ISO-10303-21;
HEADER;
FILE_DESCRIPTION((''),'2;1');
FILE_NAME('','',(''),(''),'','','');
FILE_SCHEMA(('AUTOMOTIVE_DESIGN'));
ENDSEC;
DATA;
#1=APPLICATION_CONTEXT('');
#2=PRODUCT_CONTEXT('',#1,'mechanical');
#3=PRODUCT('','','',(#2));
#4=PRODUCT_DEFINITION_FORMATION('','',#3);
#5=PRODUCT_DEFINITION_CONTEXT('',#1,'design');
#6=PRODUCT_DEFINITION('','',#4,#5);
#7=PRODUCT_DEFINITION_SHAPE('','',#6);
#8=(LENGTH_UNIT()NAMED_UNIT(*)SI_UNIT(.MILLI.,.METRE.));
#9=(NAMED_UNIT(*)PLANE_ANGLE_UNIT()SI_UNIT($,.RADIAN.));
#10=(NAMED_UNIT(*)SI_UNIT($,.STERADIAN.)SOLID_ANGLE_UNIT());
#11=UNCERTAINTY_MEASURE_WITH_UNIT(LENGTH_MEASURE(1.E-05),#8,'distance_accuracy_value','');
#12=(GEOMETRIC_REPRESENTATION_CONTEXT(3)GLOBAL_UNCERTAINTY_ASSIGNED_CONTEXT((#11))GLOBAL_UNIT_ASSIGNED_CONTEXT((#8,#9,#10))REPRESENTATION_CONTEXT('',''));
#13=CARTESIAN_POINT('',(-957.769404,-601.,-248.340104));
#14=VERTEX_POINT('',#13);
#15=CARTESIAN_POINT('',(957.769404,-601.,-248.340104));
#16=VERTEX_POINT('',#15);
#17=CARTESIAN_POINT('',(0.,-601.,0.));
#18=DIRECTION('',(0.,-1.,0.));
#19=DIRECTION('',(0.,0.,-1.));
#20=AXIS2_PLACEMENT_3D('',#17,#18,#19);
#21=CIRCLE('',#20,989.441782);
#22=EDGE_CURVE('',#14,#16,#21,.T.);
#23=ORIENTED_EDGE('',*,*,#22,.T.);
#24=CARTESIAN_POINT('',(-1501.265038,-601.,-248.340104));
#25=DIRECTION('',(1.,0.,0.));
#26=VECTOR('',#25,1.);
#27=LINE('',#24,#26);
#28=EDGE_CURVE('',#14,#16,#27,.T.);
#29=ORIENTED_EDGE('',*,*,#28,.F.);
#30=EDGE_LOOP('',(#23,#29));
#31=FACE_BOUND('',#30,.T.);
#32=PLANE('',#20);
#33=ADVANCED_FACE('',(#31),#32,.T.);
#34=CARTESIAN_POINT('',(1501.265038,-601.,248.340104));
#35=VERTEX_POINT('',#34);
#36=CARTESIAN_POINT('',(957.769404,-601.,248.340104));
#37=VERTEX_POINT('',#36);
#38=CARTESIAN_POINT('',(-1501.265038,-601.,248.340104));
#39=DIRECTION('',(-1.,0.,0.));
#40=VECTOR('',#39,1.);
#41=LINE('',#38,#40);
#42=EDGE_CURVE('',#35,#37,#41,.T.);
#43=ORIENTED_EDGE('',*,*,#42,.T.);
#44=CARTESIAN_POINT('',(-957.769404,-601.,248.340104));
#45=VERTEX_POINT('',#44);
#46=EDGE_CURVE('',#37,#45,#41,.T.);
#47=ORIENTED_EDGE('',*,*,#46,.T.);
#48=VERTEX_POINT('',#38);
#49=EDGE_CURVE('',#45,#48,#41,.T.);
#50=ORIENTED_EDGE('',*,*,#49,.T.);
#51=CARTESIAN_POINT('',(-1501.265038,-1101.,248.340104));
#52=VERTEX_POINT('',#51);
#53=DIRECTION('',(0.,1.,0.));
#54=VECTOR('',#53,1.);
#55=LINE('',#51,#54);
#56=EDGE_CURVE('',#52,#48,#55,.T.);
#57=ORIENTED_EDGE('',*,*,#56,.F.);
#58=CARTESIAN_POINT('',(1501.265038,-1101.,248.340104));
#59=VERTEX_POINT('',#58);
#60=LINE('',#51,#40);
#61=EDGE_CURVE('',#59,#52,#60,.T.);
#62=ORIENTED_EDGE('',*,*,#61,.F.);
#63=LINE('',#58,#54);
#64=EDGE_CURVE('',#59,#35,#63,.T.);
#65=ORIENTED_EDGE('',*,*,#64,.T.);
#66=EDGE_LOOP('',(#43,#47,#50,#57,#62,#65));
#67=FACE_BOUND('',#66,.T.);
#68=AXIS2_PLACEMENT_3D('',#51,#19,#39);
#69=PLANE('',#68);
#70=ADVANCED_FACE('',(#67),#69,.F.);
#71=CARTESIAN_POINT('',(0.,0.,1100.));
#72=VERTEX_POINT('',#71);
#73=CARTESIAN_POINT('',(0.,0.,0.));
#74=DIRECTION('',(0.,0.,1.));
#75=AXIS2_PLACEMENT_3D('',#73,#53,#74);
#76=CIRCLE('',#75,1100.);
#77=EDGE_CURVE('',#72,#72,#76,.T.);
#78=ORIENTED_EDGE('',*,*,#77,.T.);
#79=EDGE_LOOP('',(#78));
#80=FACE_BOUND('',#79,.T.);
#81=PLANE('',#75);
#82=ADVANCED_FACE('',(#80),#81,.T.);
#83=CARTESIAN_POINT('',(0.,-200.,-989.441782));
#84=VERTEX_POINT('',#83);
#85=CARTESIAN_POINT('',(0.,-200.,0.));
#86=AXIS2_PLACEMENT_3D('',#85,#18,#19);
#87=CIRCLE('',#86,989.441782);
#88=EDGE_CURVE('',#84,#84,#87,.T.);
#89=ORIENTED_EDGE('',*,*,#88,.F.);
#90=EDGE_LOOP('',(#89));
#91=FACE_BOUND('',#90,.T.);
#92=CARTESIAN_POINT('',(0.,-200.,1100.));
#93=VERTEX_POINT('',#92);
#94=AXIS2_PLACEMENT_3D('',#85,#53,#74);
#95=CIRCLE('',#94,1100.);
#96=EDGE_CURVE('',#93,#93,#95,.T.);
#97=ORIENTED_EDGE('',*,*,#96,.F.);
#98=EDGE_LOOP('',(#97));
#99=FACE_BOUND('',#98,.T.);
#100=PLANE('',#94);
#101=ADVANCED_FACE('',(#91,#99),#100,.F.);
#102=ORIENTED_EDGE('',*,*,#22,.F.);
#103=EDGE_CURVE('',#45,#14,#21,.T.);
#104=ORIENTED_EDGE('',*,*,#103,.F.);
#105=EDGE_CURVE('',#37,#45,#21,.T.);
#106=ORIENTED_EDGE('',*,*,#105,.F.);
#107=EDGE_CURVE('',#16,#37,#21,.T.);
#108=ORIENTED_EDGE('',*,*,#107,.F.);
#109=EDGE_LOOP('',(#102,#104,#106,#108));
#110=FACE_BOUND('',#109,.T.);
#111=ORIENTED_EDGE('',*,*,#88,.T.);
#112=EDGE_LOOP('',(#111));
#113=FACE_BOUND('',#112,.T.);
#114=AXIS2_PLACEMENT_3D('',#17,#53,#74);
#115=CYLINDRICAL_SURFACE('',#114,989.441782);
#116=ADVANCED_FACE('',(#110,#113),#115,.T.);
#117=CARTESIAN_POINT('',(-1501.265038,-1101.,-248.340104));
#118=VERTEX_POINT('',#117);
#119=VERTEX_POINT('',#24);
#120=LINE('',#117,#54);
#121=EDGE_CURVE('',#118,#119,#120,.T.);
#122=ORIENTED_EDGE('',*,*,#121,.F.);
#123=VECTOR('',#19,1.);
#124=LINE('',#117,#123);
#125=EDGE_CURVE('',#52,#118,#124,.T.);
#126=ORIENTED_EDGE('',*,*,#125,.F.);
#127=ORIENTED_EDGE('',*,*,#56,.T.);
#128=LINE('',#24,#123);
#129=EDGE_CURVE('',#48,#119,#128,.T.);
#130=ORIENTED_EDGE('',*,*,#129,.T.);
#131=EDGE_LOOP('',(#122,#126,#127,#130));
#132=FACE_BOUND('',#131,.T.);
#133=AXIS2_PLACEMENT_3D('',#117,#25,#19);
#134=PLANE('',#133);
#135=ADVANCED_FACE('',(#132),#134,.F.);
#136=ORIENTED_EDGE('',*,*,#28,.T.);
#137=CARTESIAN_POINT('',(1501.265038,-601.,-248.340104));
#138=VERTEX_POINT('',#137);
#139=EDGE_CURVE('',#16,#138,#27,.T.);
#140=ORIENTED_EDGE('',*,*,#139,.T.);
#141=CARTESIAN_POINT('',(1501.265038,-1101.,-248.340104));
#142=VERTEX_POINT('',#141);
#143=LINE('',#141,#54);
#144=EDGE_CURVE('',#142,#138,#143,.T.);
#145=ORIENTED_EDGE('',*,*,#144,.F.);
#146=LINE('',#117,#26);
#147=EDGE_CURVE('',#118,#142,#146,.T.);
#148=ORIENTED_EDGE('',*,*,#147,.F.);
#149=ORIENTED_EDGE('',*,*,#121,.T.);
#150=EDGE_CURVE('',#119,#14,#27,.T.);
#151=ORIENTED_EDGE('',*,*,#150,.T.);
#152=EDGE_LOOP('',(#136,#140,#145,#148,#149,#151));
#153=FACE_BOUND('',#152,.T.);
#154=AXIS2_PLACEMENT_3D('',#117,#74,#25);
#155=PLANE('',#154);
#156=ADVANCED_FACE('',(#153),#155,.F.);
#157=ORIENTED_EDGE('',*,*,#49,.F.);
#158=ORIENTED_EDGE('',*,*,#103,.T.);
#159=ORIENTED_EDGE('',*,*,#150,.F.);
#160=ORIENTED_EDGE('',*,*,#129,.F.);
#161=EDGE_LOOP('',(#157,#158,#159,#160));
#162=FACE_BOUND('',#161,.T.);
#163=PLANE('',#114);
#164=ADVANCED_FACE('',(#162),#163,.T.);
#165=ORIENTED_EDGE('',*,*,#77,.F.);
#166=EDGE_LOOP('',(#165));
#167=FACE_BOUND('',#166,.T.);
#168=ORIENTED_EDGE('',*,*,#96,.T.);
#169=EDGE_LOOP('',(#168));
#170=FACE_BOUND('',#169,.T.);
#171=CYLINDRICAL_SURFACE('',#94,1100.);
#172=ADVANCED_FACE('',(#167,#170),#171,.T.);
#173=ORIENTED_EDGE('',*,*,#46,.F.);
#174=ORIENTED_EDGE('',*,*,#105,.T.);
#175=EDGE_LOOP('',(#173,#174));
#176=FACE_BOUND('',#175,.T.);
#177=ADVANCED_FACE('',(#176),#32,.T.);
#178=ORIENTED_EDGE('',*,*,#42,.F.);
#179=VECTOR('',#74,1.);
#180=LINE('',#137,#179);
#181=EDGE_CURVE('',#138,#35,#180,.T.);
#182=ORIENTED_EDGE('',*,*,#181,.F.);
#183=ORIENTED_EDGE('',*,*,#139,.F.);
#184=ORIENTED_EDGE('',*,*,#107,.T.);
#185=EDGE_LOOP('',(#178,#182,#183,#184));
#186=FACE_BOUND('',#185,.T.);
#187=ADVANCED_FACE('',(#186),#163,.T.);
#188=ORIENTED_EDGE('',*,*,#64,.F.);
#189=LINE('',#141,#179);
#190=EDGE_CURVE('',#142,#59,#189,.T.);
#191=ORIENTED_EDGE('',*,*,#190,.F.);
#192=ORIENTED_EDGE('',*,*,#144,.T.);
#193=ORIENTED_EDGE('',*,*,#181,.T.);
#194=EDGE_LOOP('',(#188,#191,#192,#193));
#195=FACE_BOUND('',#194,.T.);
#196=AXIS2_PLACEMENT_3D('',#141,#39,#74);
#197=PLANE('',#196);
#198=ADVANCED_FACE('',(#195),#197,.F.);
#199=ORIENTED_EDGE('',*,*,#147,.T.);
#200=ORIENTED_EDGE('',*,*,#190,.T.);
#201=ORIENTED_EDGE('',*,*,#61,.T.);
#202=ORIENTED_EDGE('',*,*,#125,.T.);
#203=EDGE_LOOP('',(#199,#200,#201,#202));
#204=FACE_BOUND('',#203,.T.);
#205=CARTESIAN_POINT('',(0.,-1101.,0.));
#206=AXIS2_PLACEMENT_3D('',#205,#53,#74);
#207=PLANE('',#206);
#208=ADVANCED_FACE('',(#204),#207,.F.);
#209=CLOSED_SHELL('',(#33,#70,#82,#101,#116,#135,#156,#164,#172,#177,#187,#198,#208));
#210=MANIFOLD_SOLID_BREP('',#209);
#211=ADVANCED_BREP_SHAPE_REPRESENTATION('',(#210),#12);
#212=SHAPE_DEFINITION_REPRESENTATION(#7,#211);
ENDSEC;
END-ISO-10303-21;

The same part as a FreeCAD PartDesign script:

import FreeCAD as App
import Part
import Sketcher

doc = App.newDocument("Part")
params = doc.addObject("Spreadsheet::Sheet", "Params")
for row, (alias, value) in enumerate([
    ("sketch1_diameter", "2200 mm"),
    ("pad1_length", "200 mm"),
    ("pad2_length", "401 mm"),
    ("pad3_length", "500 mm"),
], start=1):
    params.set(f"A{row}", alias)
    params.set(f"B{row}", "=" + value)
    params.setAlias(f"B{row}", alias)

body = doc.addObject("PartDesign::Body", "Body")

# Sketch on XZ plane
sketch1 = body.newObject("Sketcher::SketchObject", "Sketch")
sketch1.AttachmentSupport = (doc.getObject("XZ_Plane"), [""])
sketch1.MapMode = "FlatFace"
sketch1.addGeometry(Part.Circle(App.Vector(0, 0, 0), App.Vector(0, 0, 1), 1100), False)
sketch1.addConstraint(Sketcher.Constraint("Coincident", 0, 3, -1, 1))
sketch1.addConstraint(Sketcher.Constraint("Diameter", 0, 2200.0))
sketch1.setExpression("Constraints[1]", "Params.sketch1_diameter")
pad1 = body.newObject("PartDesign::Pad", "Pad")
pad1.Profile = sketch1
pad1.setExpression("Length", "Params.pad1_length")

# Sketch on XZ plane
sketch2 = body.newObject("Sketcher::SketchObject", "Sketch001")
sketch2.AttachmentSupport = (doc.getObject("XZ_Plane"), [""])
sketch2.MapMode = "FlatFace"
sketch2.AttachmentOffset = App.Placement(App.Vector(0, 0, 200), App.Rotation())
sketch2.addGeometry(Part.Circle(App.Vector(0, 0, 0), App.Vector(0, 0, 1), 989.441782), False)
sketch2.addConstraint(Sketcher.Constraint("Coincident", 0, 3, -1, 1))
sketch2.addConstraint(Sketcher.Constraint("Diameter", 0, 1978.883564))
pad2 = body.newObject("PartDesign::Pad", "Pad001")
pad2.Profile = sketch2
pad2.setExpression("Length", "Params.pad2_length")

# Sketch on XZ plane
sketch3 = body.newObject("Sketcher::SketchObject", "Sketch002")
sketch3.AttachmentSupport = (doc.getObject("XZ_Plane"), [""])
sketch3.MapMode = "FlatFace"
sketch3.AttachmentOffset = App.Placement(App.Vector(0, 0, 601), App.Rotation())
sketch3.addGeometry(Part.LineSegment(App.Vector(-1501.265038, 248.340104, 0), App.Vector(-1501.265038, -248.340104, 0)), False)
sketch3.addGeometry(Part.LineSegment(App.Vector(-1501.265038, -248.340104, 0), App.Vector(1501.265038, -248.340104, 0)), False)
sketch3.addGeometry(Part.LineSegment(App.Vector(1501.265038, -248.340104, 0), App.Vector(1501.265038, 248.340104, 0)), False)
sketch3.addGeometry(Part.LineSegment(App.Vector(1501.265038, 248.340104, 0), App.Vector(-1501.265038, 248.340104, 0)), False)
sketch3.addConstraint(Sketcher.Constraint("Coincident", 0, 2, 1, 1))
sketch3.addConstraint(Sketcher.Constraint("Coincident", 1, 2, 2, 1))
sketch3.addConstraint(Sketcher.Constraint("Coincident", 2, 2, 3, 1))
sketch3.addConstraint(Sketcher.Constraint("Coincident", 3, 2, 0, 1))
sketch3.addConstraint(Sketcher.Constraint("Vertical", 0))
sketch3.addConstraint(Sketcher.Constraint("Horizontal", 1))
sketch3.addConstraint(Sketcher.Constraint("Vertical", 2))
sketch3.addConstraint(Sketcher.Constraint("Horizontal", 3))
sketch3.addConstraint(Sketcher.Constraint("Symmetric", 0, 2, 2, 2, -1, 1))
sketch3.addConstraint(Sketcher.Constraint("DistanceY", 0, 2, 0, 1, 496.680209))
sketch3.addConstraint(Sketcher.Constraint("DistanceX", 1, 1, 1, 2, 3002.530076))
pad3 = body.newObject("PartDesign::Pad", "Pad002")
pad3.Profile = sketch3
pad3.setExpression("Length", "Params.pad3_length")

doc.recompute()
